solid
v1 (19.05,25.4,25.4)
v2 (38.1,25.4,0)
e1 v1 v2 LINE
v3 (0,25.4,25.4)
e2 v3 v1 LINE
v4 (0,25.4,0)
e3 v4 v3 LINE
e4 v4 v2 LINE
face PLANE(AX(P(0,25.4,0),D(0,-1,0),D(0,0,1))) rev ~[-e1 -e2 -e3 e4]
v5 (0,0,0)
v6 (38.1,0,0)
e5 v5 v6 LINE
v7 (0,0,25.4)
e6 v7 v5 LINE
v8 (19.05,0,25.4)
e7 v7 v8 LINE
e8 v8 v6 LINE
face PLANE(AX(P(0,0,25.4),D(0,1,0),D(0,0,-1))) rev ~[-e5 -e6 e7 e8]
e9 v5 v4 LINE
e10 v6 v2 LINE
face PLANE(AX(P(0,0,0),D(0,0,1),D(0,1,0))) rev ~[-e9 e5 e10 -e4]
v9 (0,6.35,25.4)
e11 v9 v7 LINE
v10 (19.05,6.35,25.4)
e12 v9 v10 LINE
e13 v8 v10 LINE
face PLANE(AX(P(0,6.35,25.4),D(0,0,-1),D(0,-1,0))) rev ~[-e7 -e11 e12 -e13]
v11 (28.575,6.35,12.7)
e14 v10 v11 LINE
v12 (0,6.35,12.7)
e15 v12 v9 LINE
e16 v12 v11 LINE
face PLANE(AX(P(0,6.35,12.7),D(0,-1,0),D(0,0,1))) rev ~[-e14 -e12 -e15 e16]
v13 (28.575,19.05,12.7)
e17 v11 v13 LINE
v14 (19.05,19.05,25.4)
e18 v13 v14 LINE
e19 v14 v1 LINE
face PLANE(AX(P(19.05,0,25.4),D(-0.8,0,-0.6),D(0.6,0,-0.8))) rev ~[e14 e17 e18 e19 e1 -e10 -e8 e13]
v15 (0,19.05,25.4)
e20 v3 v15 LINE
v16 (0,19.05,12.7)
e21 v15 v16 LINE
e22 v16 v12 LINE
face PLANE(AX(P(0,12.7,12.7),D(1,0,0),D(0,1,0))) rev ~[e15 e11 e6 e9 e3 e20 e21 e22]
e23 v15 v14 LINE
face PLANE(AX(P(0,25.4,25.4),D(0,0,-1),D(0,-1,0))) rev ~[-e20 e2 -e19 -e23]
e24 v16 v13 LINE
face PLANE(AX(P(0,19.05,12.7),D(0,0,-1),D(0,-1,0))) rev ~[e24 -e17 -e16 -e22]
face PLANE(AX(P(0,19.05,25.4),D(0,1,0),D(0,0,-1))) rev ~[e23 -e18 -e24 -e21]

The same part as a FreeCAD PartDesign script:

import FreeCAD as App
import Part
import Sketcher
Q = App.Units.Quantity

doc = App.newDocument("Part")
params = doc.addObject("Spreadsheet::Sheet", "Params")
for row, (alias, value) in enumerate([
    ("sketch1_width", "1 in"),
    ("sketch1_width2", "0.5 in"),
    ("pad1_length", "1.5 in"),
    ("sketch2_height", "1 in"),
    ("sketch2_width", "0.75 in"),
    ("pocket1_length", "1 in"),
], start=1):
    params.set(f"A{row}", alias)
    params.set(f"B{row}", "=" + value)
    params.setAlias(f"B{row}", alias)

body = doc.addObject("PartDesign::Body", "Body")

# Sketch on YZ plane
sketch1 = body.newObject("Sketcher::SketchObject", "Sketch")
sketch1.AttachmentSupport = (doc.getObject("YZ_Plane"), [""])
sketch1.MapMode = "FlatFace"
sketch1.addGeometry([
    Part.LineSegment(App.Vector(0, 25, 0), App.Vector(0, 0, 0)),  # 0
    Part.LineSegment(App.Vector(0, 0, 0), App.Vector(25, 0, 0)),  # 1
    Part.LineSegment(App.Vector(25, 0, 0), App.Vector(25, 25, 0)),  # 2
    Part.LineSegment(App.Vector(25, 25, 0), App.Vector(19, 25, 0)),  # 3
    Part.LineSegment(App.Vector(19, 25, 0), App.Vector(19, 13, 0)),  # 4
    Part.LineSegment(App.Vector(19, 13, 0), App.Vector(6, 13, 0)),  # 5
    Part.LineSegment(App.Vector(6, 13, 0), App.Vector(6, 25, 0)),  # 6
    Part.LineSegment(App.Vector(6, 25, 0), App.Vector(0, 25, 0)),  # 7
], False)
sketch1.addConstraint([
    Sketcher.Constraint("Coincident", 0, 2, 1, 1),
    Sketcher.Constraint("Coincident", 1, 2, 2, 1),
    Sketcher.Constraint("Coincident", 2, 2, 3, 1),
    Sketcher.Constraint("Coincident", 3, 2, 4, 1),
    Sketcher.Constraint("Coincident", 4, 2, 5, 1),
    Sketcher.Constraint("Coincident", 5, 2, 6, 1),
    Sketcher.Constraint("Coincident", 6, 2, 7, 1),
    Sketcher.Constraint("Coincident", 7, 2, 0, 1),
    Sketcher.Constraint("Vertical", 0),
    Sketcher.Constraint("Horizontal", 1),
    Sketcher.Constraint("Vertical", 2),
    Sketcher.Constraint("Horizontal", 3),
    Sketcher.Constraint("Vertical", 4),
    Sketcher.Constraint("Horizontal", 5),
    Sketcher.Constraint("Vertical", 6),
    Sketcher.Constraint("Horizontal", 7),
    Sketcher.Constraint("Coincident", 0, 2, -1, 1),
    Sketcher.Constraint("Horizontal", 3, 2, 6, 2),
    Sketcher.Constraint("Equal", 3, 7),
    Sketcher.Constraint("Equal", 1, 0),
    Sketcher.Constraint("Equal", 5, 4),
    Sketcher.Constraint("DistanceX", 1, 1, 1, 2, Q("1 in")),
    Sketcher.Constraint("DistanceX", 5, 2, 5, 1, Q("0.5 in")),
])
sketch1.setExpression("Constraints[21]", "Params.sketch1_width")
sketch1.setExpression("Constraints[22]", "Params.sketch1_width2")
pad1 = body.newObject("PartDesign::Pad", "Pad")
pad1.Profile = sketch1
pad1.setExpression("Length", "Params.pad1_length")

# Sketch on XZ plane
sketch2 = body.newObject("Sketcher::SketchObject", "Sketch001")
sketch2.AttachmentSupport = (doc.getObject("XZ_Plane"), [""])
sketch2.MapMode = "FlatFace"
sketch2.addGeometry([
    Part.LineSegment(App.Vector(38, 25, 0), App.Vector(19, 25, 0)),
    Part.LineSegment(App.Vector(19, 25, 0), App.Vector(38, 0, 0)),
    Part.LineSegment(App.Vector(38, 0, 0), App.Vector(38, 25, 0)),
], False)
sketch2.addConstraint([
    Sketcher.Constraint("Coincident", 0, 2, 1, 1),
    Sketcher.Constraint("Coincident", 1, 2, 2, 1),
    Sketcher.Constraint("Coincident", 2, 2, 0, 1),
    Sketcher.Constraint("Horizontal", 0),
    Sketcher.Constraint("Vertical", 2),
    Sketcher.Constraint("PointOnObject", 1, 2, -1),
    Sketcher.Constraint("DistanceY", 2, 1, 2, 2, Q("1 in")),
    Sketcher.Constraint("DistanceX", 0, 2, 0, 1, Q("0.75 in")),
    Sketcher.Constraint("DistanceX", -1, 1, 1, 2, Q("1.5 in")),
])
sketch2.setExpression("Constraints[6]", "Params.sketch2_height")
sketch2.setExpression("Constraints[7]", "Params.sketch2_width")
pocket1 = body.newObject("PartDesign::Pocket", "Pocket")
pocket1.Profile = sketch2
pocket1.setExpression("Length", "Params.pocket1_length")

doc.recompute()
